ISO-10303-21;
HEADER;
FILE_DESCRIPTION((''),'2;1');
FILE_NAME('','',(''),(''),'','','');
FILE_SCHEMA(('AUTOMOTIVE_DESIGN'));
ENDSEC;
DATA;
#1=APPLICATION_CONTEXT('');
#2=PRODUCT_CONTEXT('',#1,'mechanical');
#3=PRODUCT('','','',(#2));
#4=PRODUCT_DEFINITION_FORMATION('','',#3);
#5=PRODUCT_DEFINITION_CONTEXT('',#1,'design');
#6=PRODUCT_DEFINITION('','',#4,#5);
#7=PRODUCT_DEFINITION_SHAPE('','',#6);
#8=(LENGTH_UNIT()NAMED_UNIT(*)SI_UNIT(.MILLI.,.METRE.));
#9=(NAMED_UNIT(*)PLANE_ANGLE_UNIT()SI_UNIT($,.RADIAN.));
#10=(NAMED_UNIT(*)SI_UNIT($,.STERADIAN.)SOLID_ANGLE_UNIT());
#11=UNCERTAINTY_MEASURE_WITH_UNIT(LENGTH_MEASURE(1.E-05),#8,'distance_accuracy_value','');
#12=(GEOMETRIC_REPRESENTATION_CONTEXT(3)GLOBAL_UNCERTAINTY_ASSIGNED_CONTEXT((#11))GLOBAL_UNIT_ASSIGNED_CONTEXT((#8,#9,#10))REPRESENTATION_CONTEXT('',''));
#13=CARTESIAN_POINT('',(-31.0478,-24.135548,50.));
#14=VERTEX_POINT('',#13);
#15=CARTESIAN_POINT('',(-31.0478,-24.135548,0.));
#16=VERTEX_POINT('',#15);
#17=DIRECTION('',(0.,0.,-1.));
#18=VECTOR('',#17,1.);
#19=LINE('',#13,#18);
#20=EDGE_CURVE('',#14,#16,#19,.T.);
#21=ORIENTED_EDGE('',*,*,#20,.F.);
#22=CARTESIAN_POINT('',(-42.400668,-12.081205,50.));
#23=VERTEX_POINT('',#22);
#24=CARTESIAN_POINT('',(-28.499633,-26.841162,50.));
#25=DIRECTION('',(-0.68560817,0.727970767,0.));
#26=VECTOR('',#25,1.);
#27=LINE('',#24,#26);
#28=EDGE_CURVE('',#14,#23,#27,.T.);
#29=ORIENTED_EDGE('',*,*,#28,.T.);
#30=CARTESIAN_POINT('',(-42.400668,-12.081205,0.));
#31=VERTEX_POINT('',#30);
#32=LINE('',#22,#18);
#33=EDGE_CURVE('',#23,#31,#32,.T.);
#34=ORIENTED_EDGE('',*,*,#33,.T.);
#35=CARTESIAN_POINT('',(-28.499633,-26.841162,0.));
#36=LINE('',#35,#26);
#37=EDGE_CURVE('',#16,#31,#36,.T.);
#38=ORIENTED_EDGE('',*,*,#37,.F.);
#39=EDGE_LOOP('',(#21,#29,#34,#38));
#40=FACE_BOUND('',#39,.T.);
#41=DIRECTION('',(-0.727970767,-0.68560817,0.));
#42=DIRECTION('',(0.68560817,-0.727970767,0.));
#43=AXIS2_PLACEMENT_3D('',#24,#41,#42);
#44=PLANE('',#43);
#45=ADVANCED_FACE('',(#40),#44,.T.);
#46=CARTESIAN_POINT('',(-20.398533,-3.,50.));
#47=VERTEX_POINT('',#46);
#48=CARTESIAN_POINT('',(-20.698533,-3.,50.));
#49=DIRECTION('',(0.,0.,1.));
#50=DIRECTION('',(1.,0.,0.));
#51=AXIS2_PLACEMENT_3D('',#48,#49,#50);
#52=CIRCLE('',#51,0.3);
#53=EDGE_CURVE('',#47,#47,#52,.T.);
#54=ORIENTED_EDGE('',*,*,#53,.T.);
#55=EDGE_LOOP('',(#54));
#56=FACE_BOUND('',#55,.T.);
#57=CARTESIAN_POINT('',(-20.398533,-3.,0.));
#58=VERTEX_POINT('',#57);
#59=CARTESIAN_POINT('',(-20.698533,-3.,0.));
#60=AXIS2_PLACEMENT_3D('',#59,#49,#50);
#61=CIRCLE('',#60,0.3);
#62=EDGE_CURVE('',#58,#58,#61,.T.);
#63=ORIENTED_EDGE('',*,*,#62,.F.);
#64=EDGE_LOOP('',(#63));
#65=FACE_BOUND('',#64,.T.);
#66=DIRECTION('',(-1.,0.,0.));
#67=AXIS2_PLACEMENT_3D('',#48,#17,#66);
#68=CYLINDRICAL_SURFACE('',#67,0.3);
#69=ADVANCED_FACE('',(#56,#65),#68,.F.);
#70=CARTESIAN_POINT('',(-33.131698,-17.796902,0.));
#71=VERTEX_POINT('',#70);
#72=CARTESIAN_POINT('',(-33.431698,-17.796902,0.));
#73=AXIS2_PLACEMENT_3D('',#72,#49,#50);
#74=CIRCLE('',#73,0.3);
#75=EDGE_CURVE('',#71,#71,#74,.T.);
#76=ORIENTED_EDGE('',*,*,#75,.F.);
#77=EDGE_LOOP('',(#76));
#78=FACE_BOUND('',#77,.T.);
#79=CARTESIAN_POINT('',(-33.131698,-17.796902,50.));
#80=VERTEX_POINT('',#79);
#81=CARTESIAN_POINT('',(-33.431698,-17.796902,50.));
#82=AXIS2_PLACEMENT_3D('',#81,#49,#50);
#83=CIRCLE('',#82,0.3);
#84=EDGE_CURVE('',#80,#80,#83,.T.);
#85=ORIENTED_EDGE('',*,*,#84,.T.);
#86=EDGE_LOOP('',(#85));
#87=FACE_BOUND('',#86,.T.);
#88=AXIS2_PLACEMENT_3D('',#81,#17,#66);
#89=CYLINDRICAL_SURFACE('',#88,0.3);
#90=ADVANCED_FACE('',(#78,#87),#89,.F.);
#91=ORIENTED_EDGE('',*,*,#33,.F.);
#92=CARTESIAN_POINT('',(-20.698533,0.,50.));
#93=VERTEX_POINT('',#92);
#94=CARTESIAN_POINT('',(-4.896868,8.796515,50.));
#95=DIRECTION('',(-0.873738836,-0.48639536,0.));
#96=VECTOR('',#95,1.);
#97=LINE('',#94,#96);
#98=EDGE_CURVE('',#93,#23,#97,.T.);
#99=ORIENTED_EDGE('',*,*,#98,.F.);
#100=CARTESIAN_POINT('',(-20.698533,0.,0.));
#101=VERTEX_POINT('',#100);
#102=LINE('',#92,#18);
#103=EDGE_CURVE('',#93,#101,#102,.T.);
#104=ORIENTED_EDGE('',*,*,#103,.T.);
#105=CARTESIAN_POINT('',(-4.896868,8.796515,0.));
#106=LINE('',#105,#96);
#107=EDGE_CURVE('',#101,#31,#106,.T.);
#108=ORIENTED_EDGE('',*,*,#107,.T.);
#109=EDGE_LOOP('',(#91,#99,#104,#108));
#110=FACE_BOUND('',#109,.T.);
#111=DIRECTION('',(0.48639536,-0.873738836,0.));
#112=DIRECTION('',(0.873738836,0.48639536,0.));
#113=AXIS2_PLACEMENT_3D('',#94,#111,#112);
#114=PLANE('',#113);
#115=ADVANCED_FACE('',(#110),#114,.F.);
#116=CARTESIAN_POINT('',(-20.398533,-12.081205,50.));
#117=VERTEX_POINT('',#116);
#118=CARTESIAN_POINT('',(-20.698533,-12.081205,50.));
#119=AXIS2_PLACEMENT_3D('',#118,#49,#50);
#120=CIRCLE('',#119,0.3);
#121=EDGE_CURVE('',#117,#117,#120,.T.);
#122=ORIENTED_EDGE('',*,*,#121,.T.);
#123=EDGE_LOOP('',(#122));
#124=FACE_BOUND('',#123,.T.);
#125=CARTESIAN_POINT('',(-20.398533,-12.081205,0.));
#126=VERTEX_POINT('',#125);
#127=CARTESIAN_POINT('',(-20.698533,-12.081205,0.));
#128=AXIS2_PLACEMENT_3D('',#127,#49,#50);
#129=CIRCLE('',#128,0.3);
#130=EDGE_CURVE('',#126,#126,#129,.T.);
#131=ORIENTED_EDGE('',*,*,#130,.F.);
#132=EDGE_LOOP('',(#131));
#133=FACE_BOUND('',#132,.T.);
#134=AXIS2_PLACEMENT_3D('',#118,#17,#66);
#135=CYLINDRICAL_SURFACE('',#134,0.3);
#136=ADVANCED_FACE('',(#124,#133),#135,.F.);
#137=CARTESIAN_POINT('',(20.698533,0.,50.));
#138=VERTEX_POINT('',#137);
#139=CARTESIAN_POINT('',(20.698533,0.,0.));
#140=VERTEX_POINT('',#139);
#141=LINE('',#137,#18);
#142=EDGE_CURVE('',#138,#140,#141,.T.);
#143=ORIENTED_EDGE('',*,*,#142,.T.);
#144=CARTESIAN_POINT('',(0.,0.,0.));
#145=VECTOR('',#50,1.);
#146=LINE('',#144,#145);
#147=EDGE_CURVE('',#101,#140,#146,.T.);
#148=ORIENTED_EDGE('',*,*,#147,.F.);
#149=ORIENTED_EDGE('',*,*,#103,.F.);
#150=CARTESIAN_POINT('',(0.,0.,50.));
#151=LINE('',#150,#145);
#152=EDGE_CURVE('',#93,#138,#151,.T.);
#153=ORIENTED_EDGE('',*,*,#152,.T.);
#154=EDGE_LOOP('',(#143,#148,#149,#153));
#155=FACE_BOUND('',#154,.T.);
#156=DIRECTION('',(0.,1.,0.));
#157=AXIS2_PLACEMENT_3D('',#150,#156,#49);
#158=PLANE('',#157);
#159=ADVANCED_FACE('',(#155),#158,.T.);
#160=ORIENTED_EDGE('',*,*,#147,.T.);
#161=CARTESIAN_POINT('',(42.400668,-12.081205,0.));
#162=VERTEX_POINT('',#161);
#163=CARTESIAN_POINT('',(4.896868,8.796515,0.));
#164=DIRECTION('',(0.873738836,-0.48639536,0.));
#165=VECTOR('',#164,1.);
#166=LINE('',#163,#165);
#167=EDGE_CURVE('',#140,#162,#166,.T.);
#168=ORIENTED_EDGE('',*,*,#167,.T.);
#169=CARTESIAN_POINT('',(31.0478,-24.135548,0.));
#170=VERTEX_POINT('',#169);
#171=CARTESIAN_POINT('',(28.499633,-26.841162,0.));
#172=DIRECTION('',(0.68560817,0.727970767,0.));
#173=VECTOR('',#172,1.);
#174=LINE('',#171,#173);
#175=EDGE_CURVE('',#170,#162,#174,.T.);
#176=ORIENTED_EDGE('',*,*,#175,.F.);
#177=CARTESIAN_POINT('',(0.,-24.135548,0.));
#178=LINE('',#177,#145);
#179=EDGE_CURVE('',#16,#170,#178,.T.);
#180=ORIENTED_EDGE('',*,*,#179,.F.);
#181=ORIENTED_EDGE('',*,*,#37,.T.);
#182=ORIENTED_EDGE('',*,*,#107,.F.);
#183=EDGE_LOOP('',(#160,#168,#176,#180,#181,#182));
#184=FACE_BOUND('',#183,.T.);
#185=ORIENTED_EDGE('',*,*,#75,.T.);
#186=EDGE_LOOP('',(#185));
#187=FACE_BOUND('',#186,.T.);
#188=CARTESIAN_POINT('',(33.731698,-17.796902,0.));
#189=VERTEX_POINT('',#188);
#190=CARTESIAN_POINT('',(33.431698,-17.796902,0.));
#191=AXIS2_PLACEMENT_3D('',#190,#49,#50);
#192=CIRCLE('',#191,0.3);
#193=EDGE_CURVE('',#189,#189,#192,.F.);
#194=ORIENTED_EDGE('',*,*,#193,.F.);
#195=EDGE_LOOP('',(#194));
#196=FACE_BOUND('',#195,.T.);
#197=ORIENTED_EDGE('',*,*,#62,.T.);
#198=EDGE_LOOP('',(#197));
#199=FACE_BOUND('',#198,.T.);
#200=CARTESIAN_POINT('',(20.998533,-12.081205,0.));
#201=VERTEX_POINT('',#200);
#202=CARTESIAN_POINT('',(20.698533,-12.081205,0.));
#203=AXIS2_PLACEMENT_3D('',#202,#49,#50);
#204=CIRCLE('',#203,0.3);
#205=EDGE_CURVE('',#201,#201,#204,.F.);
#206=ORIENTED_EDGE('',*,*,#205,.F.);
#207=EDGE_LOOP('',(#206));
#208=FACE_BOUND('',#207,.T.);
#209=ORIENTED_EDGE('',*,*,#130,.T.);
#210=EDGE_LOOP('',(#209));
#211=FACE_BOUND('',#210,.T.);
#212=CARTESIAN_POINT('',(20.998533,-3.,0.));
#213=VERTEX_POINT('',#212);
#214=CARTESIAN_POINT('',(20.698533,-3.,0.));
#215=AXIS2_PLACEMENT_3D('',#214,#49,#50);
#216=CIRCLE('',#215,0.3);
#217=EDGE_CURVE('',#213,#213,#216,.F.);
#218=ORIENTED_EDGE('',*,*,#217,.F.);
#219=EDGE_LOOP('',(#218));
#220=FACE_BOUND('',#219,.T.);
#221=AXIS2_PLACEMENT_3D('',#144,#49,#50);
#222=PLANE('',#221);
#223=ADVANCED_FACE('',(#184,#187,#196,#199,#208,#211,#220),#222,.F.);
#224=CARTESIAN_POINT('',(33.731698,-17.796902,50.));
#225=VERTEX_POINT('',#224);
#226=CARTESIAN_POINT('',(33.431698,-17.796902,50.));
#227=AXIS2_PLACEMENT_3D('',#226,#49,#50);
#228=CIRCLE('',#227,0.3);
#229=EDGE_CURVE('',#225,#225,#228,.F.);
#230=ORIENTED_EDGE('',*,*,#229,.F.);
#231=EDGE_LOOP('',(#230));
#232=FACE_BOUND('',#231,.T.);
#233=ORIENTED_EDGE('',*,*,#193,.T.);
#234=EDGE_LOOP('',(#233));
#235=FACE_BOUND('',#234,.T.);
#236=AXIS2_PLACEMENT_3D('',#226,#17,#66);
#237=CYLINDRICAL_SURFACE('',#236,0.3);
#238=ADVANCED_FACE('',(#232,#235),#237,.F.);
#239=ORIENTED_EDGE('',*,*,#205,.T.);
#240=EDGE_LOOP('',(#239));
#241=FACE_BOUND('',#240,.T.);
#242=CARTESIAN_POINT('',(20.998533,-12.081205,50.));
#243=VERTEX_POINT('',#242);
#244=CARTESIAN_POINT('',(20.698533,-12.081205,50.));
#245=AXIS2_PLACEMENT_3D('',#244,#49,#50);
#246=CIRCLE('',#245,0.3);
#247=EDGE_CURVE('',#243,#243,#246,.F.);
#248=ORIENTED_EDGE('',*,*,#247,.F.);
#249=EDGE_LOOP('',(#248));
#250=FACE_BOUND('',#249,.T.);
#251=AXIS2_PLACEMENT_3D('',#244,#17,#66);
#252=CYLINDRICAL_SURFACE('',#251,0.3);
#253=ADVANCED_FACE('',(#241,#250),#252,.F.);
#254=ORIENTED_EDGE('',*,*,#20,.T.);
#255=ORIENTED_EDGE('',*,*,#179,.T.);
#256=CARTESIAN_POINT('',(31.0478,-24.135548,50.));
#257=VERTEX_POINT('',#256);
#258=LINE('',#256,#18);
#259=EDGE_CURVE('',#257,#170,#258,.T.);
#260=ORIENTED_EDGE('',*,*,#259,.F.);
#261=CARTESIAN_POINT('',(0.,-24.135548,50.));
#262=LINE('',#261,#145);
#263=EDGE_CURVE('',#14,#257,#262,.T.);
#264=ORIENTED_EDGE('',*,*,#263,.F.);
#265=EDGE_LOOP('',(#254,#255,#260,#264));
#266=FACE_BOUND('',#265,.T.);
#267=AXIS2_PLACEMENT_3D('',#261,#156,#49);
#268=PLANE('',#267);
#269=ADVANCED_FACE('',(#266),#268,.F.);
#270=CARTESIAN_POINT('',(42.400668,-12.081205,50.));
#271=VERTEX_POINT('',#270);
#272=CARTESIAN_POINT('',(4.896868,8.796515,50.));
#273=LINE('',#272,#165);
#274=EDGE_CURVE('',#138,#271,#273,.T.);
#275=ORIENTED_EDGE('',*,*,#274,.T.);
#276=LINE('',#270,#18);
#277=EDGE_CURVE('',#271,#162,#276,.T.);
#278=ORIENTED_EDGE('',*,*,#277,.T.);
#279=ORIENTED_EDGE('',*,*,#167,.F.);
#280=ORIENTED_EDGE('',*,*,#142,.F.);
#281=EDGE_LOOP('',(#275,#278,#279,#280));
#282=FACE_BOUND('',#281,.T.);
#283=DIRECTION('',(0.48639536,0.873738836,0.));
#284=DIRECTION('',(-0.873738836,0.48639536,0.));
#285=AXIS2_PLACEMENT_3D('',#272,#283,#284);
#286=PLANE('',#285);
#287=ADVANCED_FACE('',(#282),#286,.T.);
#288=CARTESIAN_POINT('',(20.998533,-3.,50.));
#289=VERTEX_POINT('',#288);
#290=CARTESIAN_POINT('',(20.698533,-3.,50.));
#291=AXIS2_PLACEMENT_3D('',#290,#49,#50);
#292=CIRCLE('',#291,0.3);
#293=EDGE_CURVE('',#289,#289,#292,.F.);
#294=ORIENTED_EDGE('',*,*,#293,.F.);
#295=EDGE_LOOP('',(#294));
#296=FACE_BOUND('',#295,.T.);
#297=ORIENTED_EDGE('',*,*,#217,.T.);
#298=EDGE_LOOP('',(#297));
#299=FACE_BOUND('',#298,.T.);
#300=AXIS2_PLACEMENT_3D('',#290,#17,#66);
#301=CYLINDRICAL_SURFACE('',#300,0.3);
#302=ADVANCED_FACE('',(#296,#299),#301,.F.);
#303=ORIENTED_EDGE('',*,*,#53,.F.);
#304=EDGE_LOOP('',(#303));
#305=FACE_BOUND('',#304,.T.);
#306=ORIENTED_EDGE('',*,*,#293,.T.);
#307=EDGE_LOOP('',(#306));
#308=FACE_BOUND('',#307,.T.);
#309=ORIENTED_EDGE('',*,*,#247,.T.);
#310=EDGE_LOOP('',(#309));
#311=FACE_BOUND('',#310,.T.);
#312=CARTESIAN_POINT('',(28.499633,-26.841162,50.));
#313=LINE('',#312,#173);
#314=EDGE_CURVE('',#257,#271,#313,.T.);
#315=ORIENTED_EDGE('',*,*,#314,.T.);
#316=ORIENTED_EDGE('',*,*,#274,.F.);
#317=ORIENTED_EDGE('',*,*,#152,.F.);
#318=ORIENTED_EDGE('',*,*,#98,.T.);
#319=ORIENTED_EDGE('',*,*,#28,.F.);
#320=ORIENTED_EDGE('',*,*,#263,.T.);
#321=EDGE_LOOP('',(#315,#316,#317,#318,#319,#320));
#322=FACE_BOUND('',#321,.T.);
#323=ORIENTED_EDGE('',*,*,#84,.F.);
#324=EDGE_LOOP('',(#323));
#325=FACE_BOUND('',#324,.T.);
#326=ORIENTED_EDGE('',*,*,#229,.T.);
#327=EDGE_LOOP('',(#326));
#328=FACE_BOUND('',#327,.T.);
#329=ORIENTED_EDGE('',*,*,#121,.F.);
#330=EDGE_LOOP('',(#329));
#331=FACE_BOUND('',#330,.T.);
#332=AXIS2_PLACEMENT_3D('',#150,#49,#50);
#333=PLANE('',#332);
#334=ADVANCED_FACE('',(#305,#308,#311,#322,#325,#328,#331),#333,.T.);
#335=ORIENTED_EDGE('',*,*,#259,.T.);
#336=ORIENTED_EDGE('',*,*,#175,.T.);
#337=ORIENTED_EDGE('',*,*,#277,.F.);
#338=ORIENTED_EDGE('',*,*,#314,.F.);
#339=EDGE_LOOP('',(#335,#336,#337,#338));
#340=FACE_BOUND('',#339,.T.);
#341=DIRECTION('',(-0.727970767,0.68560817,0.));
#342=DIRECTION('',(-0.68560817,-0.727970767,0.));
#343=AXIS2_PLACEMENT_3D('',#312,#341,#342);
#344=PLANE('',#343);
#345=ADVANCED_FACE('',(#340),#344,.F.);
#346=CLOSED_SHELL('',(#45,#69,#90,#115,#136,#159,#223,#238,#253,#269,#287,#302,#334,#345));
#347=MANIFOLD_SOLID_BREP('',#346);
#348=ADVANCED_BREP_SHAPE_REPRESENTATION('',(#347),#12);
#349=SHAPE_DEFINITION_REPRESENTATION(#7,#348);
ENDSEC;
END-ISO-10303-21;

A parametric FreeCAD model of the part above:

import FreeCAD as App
import Part
import Sketcher
Q = App.Units.Quantity

doc = App.newDocument("Part")
params = doc.addObject("Spreadsheet::Sheet", "Params")
for row, (alias, value) in enumerate([
    ("sketch1_diameter", "0.6 mm"),
    ("pad1_length", "50 mm"),
], start=1):
    params.set(f"A{row}", alias)
    params.set(f"B{row}", "=" + value)
    params.setAlias(f"B{row}", alias)

body = doc.addObject("PartDesign::Body", "Body")

# Sketch on XY plane
sketch1 = body.newObject("Sketcher::SketchObject", "Sketch")
sketch1.AttachmentSupport = (doc.getObject("XY_Plane"), [""])
sketch1.MapMode = "FlatFace"
sketch1.addGeometry([
    Part.LineSegment(App.Vector(20.7, 0, 0), App.Vector(-20.7, 0, 0)),  # 0
    Part.LineSegment(App.Vector(-20.7, 0, 0), App.Vector(-42.4, -12.08, 0)),  # 1
    Part.LineSegment(App.Vector(-42.4, -12.08, 0), App.Vector(-31.05, -24.14, 0)),  # 2
    Part.LineSegment(App.Vector(-31.05, -24.14, 0), App.Vector(31.05, -24.14, 0)),  # 3
    Part.LineSegment(App.Vector(31.05, -24.14, 0), App.Vector(42.4, -12.08, 0)),  # 4
    Part.LineSegment(App.Vector(42.4, -12.08, 0), App.Vector(20.7, 0, 0)),  # 5
    Part.Circle(App.Vector(-33.43, -17.8, 0), App.Vector(0, 0, 1), 0.3),  # 6
    Part.Circle(App.Vector(-20.7, -12.08, 0), App.Vector(0, 0, 1), 0.3),  # 7
    Part.Circle(App.Vector(33.43, -17.8, 0), App.Vector(0, 0, 1), 0.3),  # 8
    Part.Circle(App.Vector(20.7, -12.08, 0), App.Vector(0, 0, 1), 0.3),  # 9
    Part.Circle(App.Vector(-20.7, -3, 0), App.Vector(0, 0, 1), 0.3),  # 10
    Part.Circle(App.Vector(20.7, -3, 0), App.Vector(0, 0, 1), 0.3),  # 11
], False)
sketch1.addConstraint([
    Sketcher.Constraint("Coincident", 0, 2, 1, 1),
    Sketcher.Constraint("Coincident", 1, 2, 2, 1),
    Sketcher.Constraint("Coincident", 2, 2, 3, 1),
    Sketcher.Constraint("Coincident", 3, 2, 4, 1),
    Sketcher.Constraint("Coincident", 4, 2, 5, 1),
    Sketcher.Constraint("Coincident", 5, 2, 0, 1),
    Sketcher.Constraint("Horizontal", 0),
    Sketcher.Constraint("Horizontal", 3),
    Sketcher.Constraint("Equal", 6, 7),
    Sketcher.Constraint("Equal", 7, 8),
    Sketcher.Constraint("Equal", 8, 9),
    Sketcher.Constraint("Equal", 9, 10),
    Sketcher.Constraint("Equal", 10, 11),
    Sketcher.Constraint("Symmetric", 0, 2, 5, 2, -1, 1),
    Sketcher.Constraint("Symmetric", 6, 3, 8, 3, -2),
    Sketcher.Constraint("Symmetric", 7, 3, 9, 3, -2),
    Sketcher.Constraint("Symmetric", 10, 3, 11, 3, -2),
    Sketcher.Constraint("Symmetric", 1, 2, 4, 2, -2),
    Sketcher.Constraint("Horizontal", 9, 3, 1, 2),
    Sketcher.Constraint("Vertical", 7, 3, 10, 3),
    Sketcher.Constraint("Vertical", 10, 3, 0, 2),
    Sketcher.Constraint("Equal", 2, 4),
    Sketcher.Constraint("Diameter", 6, Q("0.6 mm")),
    Sketcher.Constraint("DistanceY", 10, 3, -1, 1, Q("3 mm")),
    Sketcher.Constraint("DistanceX", 3, 1, 3, 2, Q("62.0956 mm")),
    Sketcher.Constraint("DistanceX", 6, 3, -1, 1, Q("33.431698 mm")),
    Sketcher.Constraint("DistanceY", 6, 3, -1, 1, Q("17.796902 mm")),
    Sketcher.Constraint("DistanceX", 1, 2, 9, 3, Q("63.099201 mm")),
    Sketcher.Constraint("Distance", 1, Q("24.83824 mm")),
    Sketcher.Constraint("Distance", 2, Q("16.558829 mm")),
    Sketcher.Constraint("DistanceX", 0, 2, 0, 1, Q("41.397067 mm")),
])
sketch1.setExpression("Constraints[22]", "Params.sketch1_diameter")
pad1 = body.newObject("PartDesign::Pad", "Pad")
pad1.Profile = sketch1
pad1.setExpression("Length", "Params.pad1_length")

doc.recompute()
